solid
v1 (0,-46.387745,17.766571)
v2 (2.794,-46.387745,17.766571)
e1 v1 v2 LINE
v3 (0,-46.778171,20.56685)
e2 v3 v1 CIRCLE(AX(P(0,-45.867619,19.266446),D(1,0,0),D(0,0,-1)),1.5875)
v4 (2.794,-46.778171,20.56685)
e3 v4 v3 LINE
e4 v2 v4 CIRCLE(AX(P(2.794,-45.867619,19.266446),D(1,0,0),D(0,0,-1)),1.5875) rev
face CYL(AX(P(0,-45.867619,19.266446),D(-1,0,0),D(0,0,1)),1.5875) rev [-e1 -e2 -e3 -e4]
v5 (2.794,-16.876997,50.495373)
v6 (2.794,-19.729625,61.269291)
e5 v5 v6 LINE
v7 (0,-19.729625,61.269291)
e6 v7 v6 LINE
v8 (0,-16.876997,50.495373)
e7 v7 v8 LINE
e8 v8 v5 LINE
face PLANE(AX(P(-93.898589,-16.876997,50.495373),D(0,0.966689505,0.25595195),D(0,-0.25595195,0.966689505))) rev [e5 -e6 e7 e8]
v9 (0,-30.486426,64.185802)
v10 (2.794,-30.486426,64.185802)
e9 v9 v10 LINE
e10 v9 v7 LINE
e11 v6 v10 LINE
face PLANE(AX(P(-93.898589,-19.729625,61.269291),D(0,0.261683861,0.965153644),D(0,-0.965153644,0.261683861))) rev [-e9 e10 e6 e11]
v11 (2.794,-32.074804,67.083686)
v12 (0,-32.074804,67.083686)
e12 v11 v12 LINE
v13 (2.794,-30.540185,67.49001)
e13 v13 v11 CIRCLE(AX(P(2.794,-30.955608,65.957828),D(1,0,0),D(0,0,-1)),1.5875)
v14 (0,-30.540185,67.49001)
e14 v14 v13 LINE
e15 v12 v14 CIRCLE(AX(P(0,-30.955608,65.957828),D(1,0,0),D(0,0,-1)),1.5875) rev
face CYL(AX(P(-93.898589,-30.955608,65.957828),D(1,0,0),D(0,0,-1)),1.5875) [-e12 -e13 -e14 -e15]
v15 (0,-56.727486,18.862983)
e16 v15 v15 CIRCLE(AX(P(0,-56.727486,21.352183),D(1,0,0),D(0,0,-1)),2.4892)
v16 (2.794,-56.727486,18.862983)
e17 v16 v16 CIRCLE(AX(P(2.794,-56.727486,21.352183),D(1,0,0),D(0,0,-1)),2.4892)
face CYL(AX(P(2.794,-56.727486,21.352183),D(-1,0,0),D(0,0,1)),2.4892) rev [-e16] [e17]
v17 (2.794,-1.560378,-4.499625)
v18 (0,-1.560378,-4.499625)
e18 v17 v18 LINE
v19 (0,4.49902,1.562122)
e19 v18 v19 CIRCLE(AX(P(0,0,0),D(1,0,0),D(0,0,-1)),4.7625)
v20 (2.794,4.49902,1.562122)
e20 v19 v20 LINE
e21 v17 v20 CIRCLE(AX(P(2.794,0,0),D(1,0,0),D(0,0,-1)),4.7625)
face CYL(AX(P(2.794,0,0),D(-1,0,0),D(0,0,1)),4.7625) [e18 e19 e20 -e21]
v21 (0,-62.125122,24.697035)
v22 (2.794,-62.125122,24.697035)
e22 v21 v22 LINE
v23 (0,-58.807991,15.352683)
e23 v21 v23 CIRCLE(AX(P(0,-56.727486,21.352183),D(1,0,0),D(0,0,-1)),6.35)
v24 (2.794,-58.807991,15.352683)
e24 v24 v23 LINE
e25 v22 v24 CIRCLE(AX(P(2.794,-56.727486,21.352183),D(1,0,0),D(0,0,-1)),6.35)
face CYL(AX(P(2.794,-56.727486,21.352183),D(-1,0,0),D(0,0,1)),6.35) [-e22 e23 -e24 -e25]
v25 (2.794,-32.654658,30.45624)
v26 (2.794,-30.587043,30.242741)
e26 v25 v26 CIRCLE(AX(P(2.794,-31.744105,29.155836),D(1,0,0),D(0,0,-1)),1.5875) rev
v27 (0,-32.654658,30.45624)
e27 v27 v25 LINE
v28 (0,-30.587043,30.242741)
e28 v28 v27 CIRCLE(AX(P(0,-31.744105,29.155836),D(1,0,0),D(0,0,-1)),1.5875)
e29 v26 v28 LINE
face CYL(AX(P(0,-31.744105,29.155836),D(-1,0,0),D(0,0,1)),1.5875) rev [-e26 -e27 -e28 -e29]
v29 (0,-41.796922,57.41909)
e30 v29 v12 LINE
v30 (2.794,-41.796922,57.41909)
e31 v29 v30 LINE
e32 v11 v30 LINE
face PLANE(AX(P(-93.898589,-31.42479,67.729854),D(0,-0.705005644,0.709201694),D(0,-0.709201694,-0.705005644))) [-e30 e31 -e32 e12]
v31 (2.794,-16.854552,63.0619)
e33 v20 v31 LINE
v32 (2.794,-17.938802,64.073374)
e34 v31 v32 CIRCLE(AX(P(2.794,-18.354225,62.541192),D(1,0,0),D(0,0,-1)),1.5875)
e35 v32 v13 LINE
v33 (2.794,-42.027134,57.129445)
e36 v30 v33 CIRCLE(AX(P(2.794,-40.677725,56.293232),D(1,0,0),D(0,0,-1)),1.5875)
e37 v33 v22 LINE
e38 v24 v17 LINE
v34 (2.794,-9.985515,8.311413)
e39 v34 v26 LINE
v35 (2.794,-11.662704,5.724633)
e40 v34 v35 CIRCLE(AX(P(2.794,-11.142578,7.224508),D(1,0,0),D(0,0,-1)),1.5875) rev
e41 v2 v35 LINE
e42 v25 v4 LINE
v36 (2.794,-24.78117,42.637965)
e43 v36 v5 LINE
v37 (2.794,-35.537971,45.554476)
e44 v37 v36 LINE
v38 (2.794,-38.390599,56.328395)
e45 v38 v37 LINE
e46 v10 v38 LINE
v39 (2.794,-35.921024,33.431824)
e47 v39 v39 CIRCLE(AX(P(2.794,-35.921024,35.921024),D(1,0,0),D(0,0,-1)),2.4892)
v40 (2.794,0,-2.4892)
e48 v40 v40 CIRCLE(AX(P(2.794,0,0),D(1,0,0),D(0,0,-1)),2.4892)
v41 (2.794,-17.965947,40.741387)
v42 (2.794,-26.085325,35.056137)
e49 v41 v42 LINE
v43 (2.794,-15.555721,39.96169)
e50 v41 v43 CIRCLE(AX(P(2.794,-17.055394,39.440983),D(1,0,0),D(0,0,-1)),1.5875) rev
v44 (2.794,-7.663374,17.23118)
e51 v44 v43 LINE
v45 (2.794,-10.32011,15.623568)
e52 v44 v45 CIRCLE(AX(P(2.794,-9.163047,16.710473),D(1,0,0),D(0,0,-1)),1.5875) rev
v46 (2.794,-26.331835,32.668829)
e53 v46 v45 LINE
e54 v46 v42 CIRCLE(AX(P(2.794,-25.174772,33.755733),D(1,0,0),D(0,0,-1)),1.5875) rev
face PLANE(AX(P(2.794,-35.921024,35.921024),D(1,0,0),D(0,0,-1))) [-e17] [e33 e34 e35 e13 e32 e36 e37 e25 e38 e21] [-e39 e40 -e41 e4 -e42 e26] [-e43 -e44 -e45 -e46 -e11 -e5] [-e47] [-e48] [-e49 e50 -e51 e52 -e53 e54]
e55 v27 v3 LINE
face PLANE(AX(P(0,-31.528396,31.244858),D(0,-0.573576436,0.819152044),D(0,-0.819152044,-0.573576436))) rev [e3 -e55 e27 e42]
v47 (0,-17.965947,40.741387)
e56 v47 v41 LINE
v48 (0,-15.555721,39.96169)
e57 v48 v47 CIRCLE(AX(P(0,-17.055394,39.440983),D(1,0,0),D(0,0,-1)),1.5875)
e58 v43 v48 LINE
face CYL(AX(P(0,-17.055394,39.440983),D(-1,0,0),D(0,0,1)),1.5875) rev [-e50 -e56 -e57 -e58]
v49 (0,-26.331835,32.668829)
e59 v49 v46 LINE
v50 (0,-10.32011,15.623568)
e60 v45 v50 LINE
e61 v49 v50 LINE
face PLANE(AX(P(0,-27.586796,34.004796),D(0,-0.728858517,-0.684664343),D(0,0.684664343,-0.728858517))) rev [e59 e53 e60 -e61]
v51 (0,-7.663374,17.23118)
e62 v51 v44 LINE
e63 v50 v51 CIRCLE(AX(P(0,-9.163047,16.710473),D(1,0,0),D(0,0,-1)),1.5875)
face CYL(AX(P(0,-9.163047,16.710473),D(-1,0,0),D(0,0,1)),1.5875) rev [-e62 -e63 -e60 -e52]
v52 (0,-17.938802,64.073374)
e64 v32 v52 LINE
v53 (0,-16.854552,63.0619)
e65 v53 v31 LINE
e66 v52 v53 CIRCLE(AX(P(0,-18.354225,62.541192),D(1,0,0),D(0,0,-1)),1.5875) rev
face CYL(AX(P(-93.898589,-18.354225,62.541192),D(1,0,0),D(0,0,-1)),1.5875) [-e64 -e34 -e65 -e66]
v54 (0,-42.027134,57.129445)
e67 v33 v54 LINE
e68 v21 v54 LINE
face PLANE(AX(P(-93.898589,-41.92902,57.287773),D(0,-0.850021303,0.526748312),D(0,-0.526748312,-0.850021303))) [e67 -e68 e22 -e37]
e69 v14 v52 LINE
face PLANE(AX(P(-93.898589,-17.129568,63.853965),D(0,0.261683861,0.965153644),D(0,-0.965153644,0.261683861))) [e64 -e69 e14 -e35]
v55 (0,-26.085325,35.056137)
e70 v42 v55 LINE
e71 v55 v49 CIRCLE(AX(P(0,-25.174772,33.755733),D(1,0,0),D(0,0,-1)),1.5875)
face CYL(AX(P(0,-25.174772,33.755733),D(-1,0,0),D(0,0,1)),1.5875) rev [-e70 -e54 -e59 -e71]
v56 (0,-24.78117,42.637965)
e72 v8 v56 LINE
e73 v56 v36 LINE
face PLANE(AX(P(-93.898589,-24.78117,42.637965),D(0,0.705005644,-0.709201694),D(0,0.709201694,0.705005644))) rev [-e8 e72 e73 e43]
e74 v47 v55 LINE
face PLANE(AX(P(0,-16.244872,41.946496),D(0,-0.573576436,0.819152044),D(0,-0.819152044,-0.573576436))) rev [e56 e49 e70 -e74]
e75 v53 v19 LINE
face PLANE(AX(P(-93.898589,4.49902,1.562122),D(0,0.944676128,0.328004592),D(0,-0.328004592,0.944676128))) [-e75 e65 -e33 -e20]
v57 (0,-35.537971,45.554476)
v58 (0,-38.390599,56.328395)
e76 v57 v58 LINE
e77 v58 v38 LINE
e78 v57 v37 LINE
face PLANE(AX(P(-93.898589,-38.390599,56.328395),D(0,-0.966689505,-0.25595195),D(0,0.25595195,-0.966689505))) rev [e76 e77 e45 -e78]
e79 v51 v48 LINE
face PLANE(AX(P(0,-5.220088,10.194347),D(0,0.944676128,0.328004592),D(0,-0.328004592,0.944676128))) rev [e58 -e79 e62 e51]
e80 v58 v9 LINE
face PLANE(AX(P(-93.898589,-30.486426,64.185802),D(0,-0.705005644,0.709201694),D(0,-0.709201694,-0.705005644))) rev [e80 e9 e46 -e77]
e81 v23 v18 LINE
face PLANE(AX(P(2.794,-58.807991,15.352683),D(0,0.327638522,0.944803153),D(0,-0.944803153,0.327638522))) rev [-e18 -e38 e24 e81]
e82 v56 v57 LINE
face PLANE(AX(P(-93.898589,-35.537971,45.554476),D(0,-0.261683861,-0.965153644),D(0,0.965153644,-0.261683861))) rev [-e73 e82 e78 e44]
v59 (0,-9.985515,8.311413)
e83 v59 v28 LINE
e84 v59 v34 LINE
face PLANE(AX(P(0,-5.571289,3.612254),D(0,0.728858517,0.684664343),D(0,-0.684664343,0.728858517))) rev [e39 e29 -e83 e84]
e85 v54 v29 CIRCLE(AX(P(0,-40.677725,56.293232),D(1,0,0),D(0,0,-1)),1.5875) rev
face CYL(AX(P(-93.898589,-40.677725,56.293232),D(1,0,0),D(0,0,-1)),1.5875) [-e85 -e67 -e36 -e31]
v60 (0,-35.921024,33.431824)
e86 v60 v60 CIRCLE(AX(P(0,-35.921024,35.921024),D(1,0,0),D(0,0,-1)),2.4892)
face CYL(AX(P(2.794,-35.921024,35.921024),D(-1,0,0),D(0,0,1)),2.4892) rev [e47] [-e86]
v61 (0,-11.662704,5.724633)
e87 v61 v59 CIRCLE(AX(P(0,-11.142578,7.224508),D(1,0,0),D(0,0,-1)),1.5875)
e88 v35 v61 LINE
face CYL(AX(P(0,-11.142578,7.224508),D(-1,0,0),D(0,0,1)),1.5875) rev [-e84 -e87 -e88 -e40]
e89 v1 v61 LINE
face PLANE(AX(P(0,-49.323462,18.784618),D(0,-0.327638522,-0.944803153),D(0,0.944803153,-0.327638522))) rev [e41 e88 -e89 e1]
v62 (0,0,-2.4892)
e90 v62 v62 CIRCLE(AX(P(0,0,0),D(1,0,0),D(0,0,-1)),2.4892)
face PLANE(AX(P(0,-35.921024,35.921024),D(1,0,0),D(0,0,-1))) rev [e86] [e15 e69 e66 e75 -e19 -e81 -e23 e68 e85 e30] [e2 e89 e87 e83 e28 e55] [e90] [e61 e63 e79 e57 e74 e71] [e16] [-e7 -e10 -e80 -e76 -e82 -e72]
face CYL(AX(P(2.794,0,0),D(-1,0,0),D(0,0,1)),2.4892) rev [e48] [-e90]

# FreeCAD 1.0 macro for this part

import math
import FreeCAD as App
import Part
import Sketcher
from FreeCAD import Vector
Q = App.Units.Quantity


def edges_at(feature, points):
    """Names of the edges that pass closest to the given points."""
    edges = feature.Shape.Edges
    near = lambda p: min(range(len(edges)), key=lambda i: edges[i].distToShape(Part.Vertex(*p))[0])
    return sorted({f"Edge{near(p) + 1}" for p in points})

doc = App.newDocument("Part")
body = doc.addObject("PartDesign::Body", "Body")

sketch1 = doc.addObject("Sketcher::SketchObject", "Sketch")
body.addObject(sketch1)
sketch1.AttachmentSupport = (doc.YZ_Plane, [""])
sketch1.MapMode = "FlatFace"
sketch1.addGeometry(Part.LineSegment(Vector(-58.8, 15.4, 0), Vector(-1.6, -4.5, 0)), False)
sketch1.addGeometry(Part.ArcOfCircle(Part.Circle(Vector(0, 0, 0), Vector(0, 0, 1), 4.8), math.radians(-109), math.radians(43)), False)
sketch1.addGeometry(Part.LineSegment(Vector(3.5, 3.3, 0), Vector(-31.3, 40.3, 0)), False)
sketch1.addGeometry(Part.ArcOfCircle(Part.Circle(Vector(-35.9, 35.9, 0), Vector(0, 0, 1), 6.3), math.radians(43), math.radians(125)), False)
sketch1.addGeometry(Part.LineSegment(Vector(-39.6, 41.1, 0), Vector(-60.4, 26.6, 0)), False)
sketch1.addGeometry(Part.ArcOfCircle(Part.Circle(Vector(-56.7, 21.4, 0), Vector(0, 0, 1), 6.3), math.radians(125), math.radians(251)), False)
sketch1.addGeometry(Part.Circle(Vector(-56.7, 21.4, 0), Vector(0, 0, 1), 2.5), False)
sketch1.addGeometry(Part.Circle(Vector(-35.9, 35.9, 0), Vector(0, 0, 1), 2.5), False)
sketch1.addGeometry(Part.Circle(Vector(0, 0, 0), Vector(0, 0, 1), 2.5), False)
sketch1.addConstraint(Sketcher.Constraint("Tangent", 0, 2, 1, 1))
sketch1.addConstraint(Sketcher.Constraint("Tangent", 1, 2, 2, 1))
sketch1.addConstraint(Sketcher.Constraint("Tangent", 2, 2, 3, 1))
sketch1.addConstraint(Sketcher.Constraint("Tangent", 3, 2, 4, 1))
sketch1.addConstraint(Sketcher.Constraint("Tangent", 4, 2, 5, 1))
sketch1.addConstraint(Sketcher.Constraint("Tangent", 5, 2, 0, 1))
sketch1.addConstraint(Sketcher.Constraint("Coincident", 1, 3, -1, 1))
sketch1.addConstraint(Sketcher.Constraint("Coincident", 8, 3, -1, 1))
sketch1.addConstraint(Sketcher.Constraint("Coincident", 6, 3, 5, 3))
sketch1.addConstraint(Sketcher.Constraint("Coincident", 7, 3, 3, 3))
sketch1.addConstraint(Sketcher.Constraint("Equal", 3, 5))
sketch1.addConstraint(Sketcher.Constraint("Equal", 6, 7))
sketch1.addConstraint(Sketcher.Constraint("Equal", 7, 8))
sketch1.addConstraint(Sketcher.Constraint("Radius", 3, Q("0.25 in")))
sketch1.addConstraint(Sketcher.Constraint("Distance", 4, Q("1 in")))
sketch1.addConstraint(Sketcher.Constraint("Diameter", 6, Q("0.196 in")))
sketch1.addConstraint(Sketcher.Constraint("Angle", 4, Q("-145 deg")))
sketch1.addConstraint(Sketcher.Constraint("Radius", 1, Q("0.1875 in")))
sketch1.addConstraint(Sketcher.Constraint("DistanceY", -1, 1, 4, 2, 26.553798))
sketch1.addConstraint(Sketcher.Constraint("Distance", 2, 50.775189))
pad1 = doc.addObject("PartDesign::Pad", "Pad")
body.addObject(pad1)
pad1.Profile = sketch1
pad1.Length = Q("0.11 in")

sketch2 = doc.addObject("Sketcher::SketchObject", "Sketch001")
body.addObject(sketch2)
sketch2.AttachmentSupport = (doc.YZ_Plane, [""])
sketch2.MapMode = "FlatFace"
sketch2.AttachmentOffset = App.Placement(Vector(0, 0, 0.11 * 25.4), App.Rotation())
sketch2.addGeometry(Part.LineSegment(Vector(-6, 4, 0), Vector(-32, 31, 0)), False)
sketch2.addGeometry(Part.LineSegment(Vector(-32, 31, 0), Vector(-49, 19, 0)), False)
sketch2.addGeometry(Part.LineSegment(Vector(-49, 19, 0), Vector(-6, 4, 0)), False)
sketch2.addConstraint(Sketcher.Constraint("Coincident", 0, 2, 1, 1))
sketch2.addConstraint(Sketcher.Constraint("Coincident", 1, 2, 2, 1))
sketch2.addConstraint(Sketcher.Constraint("Coincident", 2, 2, 0, 1))
sketch2.addConstraint(Sketcher.Constraint("Angle", 1, Q("-145 deg")))
sketch2.addConstraint(Sketcher.Constraint("DistanceX", 2, 2, -1, 1, 5.571289))
sketch2.addConstraint(Sketcher.Constraint("DistanceY", 1, 2, 0, 2, 12.46024))
sketch2.addConstraint(Sketcher.Constraint("Distance", 0, 37.912164))
sketch2.addConstraint(Sketcher.Constraint("Distance", 2, 46.308242))
sketch2.addConstraint(Sketcher.Constraint("DistanceY", -1, 1, 0, 2, 31.244858))
pocket1 = doc.addObject("PartDesign::Pocket", "Pocket")
body.addObject(pocket1)
pocket1.Profile = sketch2
pocket1.Type = "ThroughAll"

sketch3 = doc.addObject("Sketcher::SketchObject", "Sketch002")
body.addObject(sketch3)
sketch3.AttachmentSupport = (doc.YZ_Plane, [""])
sketch3.MapMode = "FlatFace"
sketch3.addGeometry(Part.LineSegment(Vector(4.5, 1.6, 0), Vector(-17.1, 63.9, 0)), False)
sketch3.addGeometry(Part.LineSegment(Vector(-17.1, 63.9, 0), Vector(-31.4, 67.7, 0)), False)
sketch3.addGeometry(Part.LineSegment(Vector(-31.4, 67.7, 0), Vector(-41.9, 57.3, 0)), False)
sketch3.addGeometry(Part.LineSegment(Vector(-41.9, 57.3, 0), Vector(-62.1, 24.7, 0)), False)
sketch3.addGeometry(Part.ArcOfCircle(Part.Circle(Vector(-56.7, 21.4, 0), Vector(0, 0, 1), 6.3), math.radians(125), math.radians(148)), False)
sketch3.addGeometry(Part.LineSegment(Vector(-60.4, 26.6, 0), Vector(-39.6, 41.1, 0)), False)
sketch3.addGeometry(Part.ArcOfCircle(Part.Circle(Vector(-35.9, 35.9, 0), Vector(0, 0, 1), 6.3), math.radians(43), math.radians(125)), False)
sketch3.addGeometry(Part.LineSegment(Vector(-31.3, 40.3, 0), Vector(3.5, 3.3, 0)), False)
sketch3.addGeometry(Part.ArcOfCircle(Part.Circle(Vector(0, 0, 0), Vector(0, 0, 1), 4.8), math.radians(19), math.radians(43)), False)
sketch3.addGeometry(Part.LineSegment(Vector(-35.5, 45.6, 0), Vector(-38.4, 56.3, 0)), False)
sketch3.addGeometry(Part.LineSegment(Vector(-38.4, 56.3, 0), Vector(-30.5, 64.2, 0)), False)
sketch3.addGeometry(Part.LineSegment(Vector(-30.5, 64.2, 0), Vector(-19.7, 61.3, 0)), False)
sketch3.addGeometry(Part.LineSegment(Vector(-19.7, 61.3, 0), Vector(-16.9, 50.5, 0)), False)
sketch3.addGeometry(Part.LineSegment(Vector(-16.9, 50.5, 0), Vector(-24.8, 42.6, 0)), False)
sketch3.addGeometry(Part.LineSegment(Vector(-24.8, 42.6, 0), Vector(-35.5, 45.6, 0)), False)
sketch3.addConstraint(Sketcher.Constraint("Coincident", 0, 2, 1, 1))
sketch3.addConstraint(Sketcher.Constraint("Coincident", 1, 2, 2, 1))
sketch3.addConstraint(Sketcher.Constraint("Coincident", 2, 2, 3, 1))
sketch3.addConstraint(Sketcher.Constraint("Tangent", 3, 2, 4, 2))
sketch3.addConstraint(Sketcher.Constraint("Tangent", 4, 1, 5, 1))
sketch3.addConstraint(Sketcher.Constraint("Tangent", 5, 2, 6, 2))
sketch3.addConstraint(Sketcher.Constraint("Tangent", 6, 1, 7, 1))
sketch3.addConstraint(Sketcher.Constraint("Tangent", 7, 2, 8, 2))
sketch3.addConstraint(Sketcher.Constraint("Tangent", 8, 1, 0, 1))
sketch3.addConstraint(Sketcher.Constraint("Coincident", 9, 2, 10, 1))
sketch3.addConstraint(Sketcher.Constraint("Coincident", 10, 2, 11, 1))
sketch3.addConstraint(Sketcher.Constraint("Coincident", 11, 2, 12, 1))
sketch3.addConstraint(Sketcher.Constraint("Coincident", 12, 2, 13, 1))
sketch3.addConstraint(Sketcher.Constraint("Coincident", 13, 2, 14, 1))
sketch3.addConstraint(Sketcher.Constraint("Coincident", 14, 2, 9, 1))
sketch3.addConstraint(Sketcher.Constraint("Coincident", 8, 3, -1, 1))
sketch3.addConstraint(Sketcher.Constraint("Equal", 4, 6))
sketch3.addConstraint(Sketcher.Constraint("Parallel", 2, 10))
sketch3.addConstraint(Sketcher.Constraint("Parallel", 1, 11))
sketch3.addConstraint(Sketcher.Constraint("Parallel", 9, 12))
sketch3.addConstraint(Sketcher.Constraint("Parallel", 10, 13))
sketch3.addConstraint(Sketcher.Constraint("Parallel", 11, 14))
sketch3.addConstraint(Sketcher.Constraint("Equal", 1, 2))
sketch3.addConstraint(Sketcher.Constraint("Equal", 9, 10))
sketch3.addConstraint(Sketcher.Constraint("Equal", 10, 11))
sketch3.addConstraint(Sketcher.Constraint("Equal", 11, 12))
sketch3.addConstraint(Sketcher.Constraint("Radius", 4, Q("0.25 in")))
sketch3.addConstraint(Sketcher.Constraint("Distance", 5, Q("1 in")))
sketch3.addConstraint(Sketcher.Constraint("Angle", 5, Q("35 deg")))
sketch3.addConstraint(Sketcher.Constraint("Radius", 8, Q("0.1875 in")))
sketch3.addConstraint(Sketcher.Constraint("Angle", 1, Q("164.83 deg")))
sketch3.addConstraint(Sketcher.Constraint("Angle", 2, Q("-135.17 deg")))
sketch3.addConstraint(Sketcher.Constraint("Angle", 9, Q("104.83 deg")))
sketch3.addConstraint(Sketcher.Constraint("DistanceY", -1, 1, 10, 2, Q("2.5270001 in")))
sketch3.addConstraint(Sketcher.Constraint("DistanceY", 3, 2, 2, 2, Q("1.2830999 in")))
sketch3.addConstraint(Sketcher.Constraint("DistanceY", -1, 1, 4, 1, 26.553798))
sketch3.addConstraint(Sketcher.Constraint("DistanceX", 9, 2, -1, 1, 38.390599))
sketch3.addConstraint(Sketcher.Constraint("DistanceX", 3, 2, 2, 2, 20.196101))
sketch3.addConstraint(Sketcher.Constraint("DistanceX", 10, 2, 11, 2, 10.756801))
sketch3.addConstraint(Sketcher.Constraint("Distance", 7, 50.775189))
sketch3.addConstraint(Sketcher.Constraint("DistanceX", 1, 2, -1, 1, 31.42479))
pad2 = doc.addObject("PartDesign::Pad", "Pad001")
body.addObject(pad2)
pad2.Profile = sketch3
pad2.Length = Q("0.11 in")

sketch4 = doc.addObject("Sketcher::SketchObject", "Sketch003")
body.addObject(sketch4)
sketch4.AttachmentSupport = (doc.YZ_Plane, [""])
sketch4.MapMode = "FlatFace"
sketch4.AttachmentOffset = App.Placement(Vector(0, 0, 0.11 * 25.4), App.Rotation())
sketch4.addGeometry(Part.LineSegment(Vector(-16, 42, 0), Vector(-28, 34, 0)), False)
sketch4.addGeometry(Part.LineSegment(Vector(-28, 34, 0), Vector(-5, 10, 0)), False)
sketch4.addGeometry(Part.LineSegment(Vector(-5, 10, 0), Vector(-16, 42, 0)), False)
sketch4.addConstraint(Sketcher.Constraint("Coincident", 0, 2, 1, 1))
sketch4.addConstraint(Sketcher.Constraint("Coincident", 1, 2, 2, 1))
sketch4.addConstraint(Sketcher.Constraint("Coincident", 2, 2, 0, 1))
sketch4.addConstraint(Sketcher.Constraint("Angle", 0, Q("-145 deg")))
sketch4.addConstraint(Sketcher.Constraint("DistanceY", 0, 2, 2, 2, 7.9417))
sketch4.addConstraint(Sketcher.Constraint("DistanceY", 1, 2, 0, 2, 23.810449))
sketch4.addConstraint(Sketcher.Constraint("Distance", 1, 32.668136))
sketch4.addConstraint(Sketcher.Constraint("DistanceX", 0, 2, -1, 1, 27.586796))
sketch4.addConstraint(Sketcher.Constraint("DistanceY", -1, 1, 0, 2, 34.004796))
pocket2 = doc.addObject("PartDesign::Pocket", "Pocket001")
body.addObject(pocket2)
pocket2.Profile = sketch4
pocket2.Type = "ThroughAll"
doc.recompute()

fillet = doc.addObject("PartDesign::Fillet", "Fillet")
body.addObject(fillet)
fillet.Base = (pocket2, edges_at(pocket2, [(1.397, -5.571, 3.612), (1.397, -49.323, 18.785), (1.397, -31.528, 31.245)]))
fillet.Radius = Q("0.0625 in")
doc.recompute()

fillet2 = doc.addObject("PartDesign::Fillet", "Fillet001")
body.addObject(fillet2)
fillet2.Base = (fillet, edges_at(fillet, [
    (1.397, -17.13, 63.854),
    (1.397, -31.425, 67.73),
    (1.397, -41.929, 57.288),
    (1.397, -16.245, 41.946),
    (1.397, -5.22, 10.194),
    (1.397, -27.587, 34.005),
]))
fillet2.Radius = Q("0.0625 in")

doc.recompute()
